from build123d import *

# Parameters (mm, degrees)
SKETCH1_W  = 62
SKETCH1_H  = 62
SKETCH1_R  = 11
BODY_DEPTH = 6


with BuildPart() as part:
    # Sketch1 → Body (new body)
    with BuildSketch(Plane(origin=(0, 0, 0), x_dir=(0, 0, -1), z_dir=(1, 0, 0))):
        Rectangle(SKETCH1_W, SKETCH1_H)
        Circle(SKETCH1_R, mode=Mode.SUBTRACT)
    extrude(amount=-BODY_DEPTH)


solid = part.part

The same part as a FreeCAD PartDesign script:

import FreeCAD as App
import Part
import Sketcher


def add_polygon(sketch, points):
    """Adds a closed chain of lines whose ends are joined by coincident constraints."""
    first, n = sketch.GeometryCount, len(points)
    for a, b in zip(points, points[1:] + points[:1]):
        sketch.addGeometry(Part.LineSegment(App.Vector(*a, 0), App.Vector(*b, 0)), False)
    for i in range(n):
        sketch.addConstraint(Sketcher.Constraint("Coincident", first + i, 2, first + (i + 1) % n, 1))

doc = App.newDocument("Part")
body = doc.addObject("PartDesign::Body", "Body")

sketch1 = body.newObject("Sketcher::SketchObject", "Sketch")
sketch1.AttachmentSupport = (doc.getObject("YZ_Plane"), [""])
sketch1.MapMode = "FlatFace"
add_polygon(sketch1, [(31, 31), (-31, 31), (-31, -31), (31, -31)])
sketch1.addGeometry(Part.Circle(App.Vector(0, 0, 0), App.Vector(0, 0, 1), 11), False)
sketch1.addConstraint(Sketcher.Constraint("Horizontal", 0))
sketch1.addConstraint(Sketcher.Constraint("Vertical", 1))
sketch1.addConstraint(Sketcher.Constraint("Horizontal", 2))
sketch1.addConstraint(Sketcher.Constraint("Vertical", 3))
sketch1.addConstraint(Sketcher.Constraint("Coincident", 4, 3, -1, 1))
sketch1.addConstraint(Sketcher.Constraint("Symmetric", 0, 2, 2, 2, -1, 1))
sketch1.addConstraint(Sketcher.Constraint("Equal", 2, 1))
sketch1.addConstraint(Sketcher.Constraint("Diameter", 4, 22.0))
sketch1.addConstraint(Sketcher.Constraint("DistanceX", 0, 2, 0, 1, 62.0))
pad1 = body.newObject("PartDesign::Pad", "Pad")
pad1.Profile = sketch1
pad1.Length = 6
pad1.Reversed = True

doc.recompute()
